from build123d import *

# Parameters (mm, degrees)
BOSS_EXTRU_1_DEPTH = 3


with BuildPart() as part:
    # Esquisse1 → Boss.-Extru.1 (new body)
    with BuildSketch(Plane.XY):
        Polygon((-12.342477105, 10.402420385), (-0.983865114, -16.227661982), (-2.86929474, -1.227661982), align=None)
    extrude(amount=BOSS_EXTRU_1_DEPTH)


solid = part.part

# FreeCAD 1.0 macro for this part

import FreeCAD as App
import Part
import Sketcher
Q = App.Units.Quantity

doc = App.newDocument("Part")
body = doc.addObject("PartDesign::Body", "Body")

# Sketch on XY plane
sketch1 = doc.addObject("Sketcher::SketchObject", "Sketch")
body.addObject(sketch1)
sketch1.AttachmentSupport = (doc.XY_Plane, [""])
sketch1.MapMode = "FlatFace"
sketch1.addGeometry([
    Part.LineSegment(App.Vector(-12, 10, 0), App.Vector(-1, -16, 0)),
    Part.LineSegment(App.Vector(-1, -16, 0), App.Vector(-3, -1, 0)),
    Part.LineSegment(App.Vector(-3, -1, 0), App.Vector(-12, 10, 0)),
], False)
sketch1.addConstraint([
    Sketcher.Constraint("Coincident", 0, 2, 1, 1),
    Sketcher.Constraint("Coincident", 1, 2, 2, 1),
    Sketcher.Constraint("Coincident", 2, 2, 0, 1),
    Sketcher.Constraint("Distance", 2, Q("15 mm")),
    Sketcher.Constraint("DistanceY", 0, 2, 1, 2, Q("15 mm")),
    Sketcher.Constraint("Distance", 1, Q("15.11803 mm")),
    Sketcher.Constraint("DistanceY", 0, 2, -1, 1, Q("16.227662 mm")),
    Sketcher.Constraint("DistanceY", -1, 1, 2, 2, Q("10.40242 mm")),
    Sketcher.Constraint("DistanceX", 0, 2, -1, 1, Q("0.983865 mm")),
])
pad1 = doc.addObject("PartDesign::Pad", "Pad")
body.addObject(pad1)
pad1.Profile = sketch1
pad1.Length = 3

doc.recompute()
